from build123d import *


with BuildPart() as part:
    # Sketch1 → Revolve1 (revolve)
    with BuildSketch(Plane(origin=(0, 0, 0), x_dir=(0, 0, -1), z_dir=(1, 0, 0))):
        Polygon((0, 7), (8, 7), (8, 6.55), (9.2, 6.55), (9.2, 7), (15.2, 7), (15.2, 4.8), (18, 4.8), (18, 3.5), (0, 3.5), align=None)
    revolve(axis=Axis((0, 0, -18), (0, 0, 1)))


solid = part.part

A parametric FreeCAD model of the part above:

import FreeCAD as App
import Part
import Sketcher
from FreeCAD import Vector


def add_polygon(sketch, points):
    """Adds a closed chain of lines whose ends are joined by coincident constraints."""
    first, n = sketch.GeometryCount, len(points)
    for a, b in zip(points, points[1:] + points[:1]):
        sketch.addGeometry(Part.LineSegment(App.Vector(*a, 0), App.Vector(*b, 0)), False)
    for i in range(n):
        sketch.addConstraint(Sketcher.Constraint("Coincident", first + i, 2, first + (i + 1) % n, 1))

doc = App.newDocument("Part")
params = doc.addObject("Spreadsheet::Sheet", "Params")
for row, (alias, value) in enumerate([
    ("sketch1_height", "8 mm"),
    ("sketch1_height2", "18 mm"),
    ("sketch1_height3", "6 mm"),
    ("sketch1_width", "3.5 mm"),
    ("sketch1_width2", "1.3 mm"),
    ("revolution_angle", "360 deg"),
], start=1):
    params.set(f"A{row}", alias)
    params.set(f"B{row}", "=" + value)
    params.setAlias(f"B{row}", alias)

body = doc.addObject("PartDesign::Body", "Body")

# Sketch on YZ plane
sketch1 = body.newObject("Sketcher::SketchObject", "Sketch")
sketch1.AttachmentSupport = (doc.getObject("YZ_Plane"), [""])
sketch1.MapMode = "FlatFace"
add_polygon(sketch1, [(7, -8), (7, 0), (3.5, 0), (3.5, -18), (4.8, -18), (4.8, -15.2), (7, -15.2), (7, -9.2), (6.55, -9.2), (6.55, -8)])  # lines 0-9
sketch1.addConstraint([
    Sketcher.Constraint("Vertical", 0),
    Sketcher.Constraint("Horizontal", 1),
    Sketcher.Constraint("Vertical", 2),
    Sketcher.Constraint("Horizontal", 3),
    Sketcher.Constraint("Vertical", 4),
    Sketcher.Constraint("Horizontal", 5),
    Sketcher.Constraint("Vertical", 6),
    Sketcher.Constraint("Horizontal", 7),
    Sketcher.Constraint("Vertical", 8),
    Sketcher.Constraint("Horizontal", 9),
    Sketcher.Constraint("PointOnObject", 0, 2, -1),
    Sketcher.Constraint("Vertical", 0, 2, 5, 2),
    Sketcher.Constraint("DistanceY", 0, 1, 0, 2, 8.0),
    Sketcher.Constraint("DistanceY", 2, 2, 2, 1, 18.0),
    Sketcher.Constraint("DistanceY", 6, 1, 6, 2, 6.0),
    Sketcher.Constraint("DistanceX", 1, 2, 1, 1, 3.5),
    Sketcher.Constraint("DistanceX", 3, 1, 3, 2, 1.3),
    Sketcher.Constraint("DistanceY", 4, 1, 4, 2, 2.8),
    Sketcher.Constraint("DistanceX", -1, 1, 0, 2, 7.0),
    Sketcher.Constraint("DistanceX", 7, 2, 7, 1, 0.45),
])
sketch1.setExpression("Constraints[22]", "Params.sketch1_height")
sketch1.setExpression("Constraints[23]", "Params.sketch1_height2")
sketch1.setExpression("Constraints[24]", "Params.sketch1_height3")
sketch1.setExpression("Constraints[25]", "Params.sketch1_width")
sketch1.setExpression("Constraints[26]", "Params.sketch1_width2")
revolution = body.newObject("PartDesign::Revolution", "Revolution")
revolution.Profile = sketch1
revolution.ReferenceAxis = (sketch1, ["V_Axis"])
revolution.setExpression("Angle", "Params.revolution_angle")

doc.recompute()
